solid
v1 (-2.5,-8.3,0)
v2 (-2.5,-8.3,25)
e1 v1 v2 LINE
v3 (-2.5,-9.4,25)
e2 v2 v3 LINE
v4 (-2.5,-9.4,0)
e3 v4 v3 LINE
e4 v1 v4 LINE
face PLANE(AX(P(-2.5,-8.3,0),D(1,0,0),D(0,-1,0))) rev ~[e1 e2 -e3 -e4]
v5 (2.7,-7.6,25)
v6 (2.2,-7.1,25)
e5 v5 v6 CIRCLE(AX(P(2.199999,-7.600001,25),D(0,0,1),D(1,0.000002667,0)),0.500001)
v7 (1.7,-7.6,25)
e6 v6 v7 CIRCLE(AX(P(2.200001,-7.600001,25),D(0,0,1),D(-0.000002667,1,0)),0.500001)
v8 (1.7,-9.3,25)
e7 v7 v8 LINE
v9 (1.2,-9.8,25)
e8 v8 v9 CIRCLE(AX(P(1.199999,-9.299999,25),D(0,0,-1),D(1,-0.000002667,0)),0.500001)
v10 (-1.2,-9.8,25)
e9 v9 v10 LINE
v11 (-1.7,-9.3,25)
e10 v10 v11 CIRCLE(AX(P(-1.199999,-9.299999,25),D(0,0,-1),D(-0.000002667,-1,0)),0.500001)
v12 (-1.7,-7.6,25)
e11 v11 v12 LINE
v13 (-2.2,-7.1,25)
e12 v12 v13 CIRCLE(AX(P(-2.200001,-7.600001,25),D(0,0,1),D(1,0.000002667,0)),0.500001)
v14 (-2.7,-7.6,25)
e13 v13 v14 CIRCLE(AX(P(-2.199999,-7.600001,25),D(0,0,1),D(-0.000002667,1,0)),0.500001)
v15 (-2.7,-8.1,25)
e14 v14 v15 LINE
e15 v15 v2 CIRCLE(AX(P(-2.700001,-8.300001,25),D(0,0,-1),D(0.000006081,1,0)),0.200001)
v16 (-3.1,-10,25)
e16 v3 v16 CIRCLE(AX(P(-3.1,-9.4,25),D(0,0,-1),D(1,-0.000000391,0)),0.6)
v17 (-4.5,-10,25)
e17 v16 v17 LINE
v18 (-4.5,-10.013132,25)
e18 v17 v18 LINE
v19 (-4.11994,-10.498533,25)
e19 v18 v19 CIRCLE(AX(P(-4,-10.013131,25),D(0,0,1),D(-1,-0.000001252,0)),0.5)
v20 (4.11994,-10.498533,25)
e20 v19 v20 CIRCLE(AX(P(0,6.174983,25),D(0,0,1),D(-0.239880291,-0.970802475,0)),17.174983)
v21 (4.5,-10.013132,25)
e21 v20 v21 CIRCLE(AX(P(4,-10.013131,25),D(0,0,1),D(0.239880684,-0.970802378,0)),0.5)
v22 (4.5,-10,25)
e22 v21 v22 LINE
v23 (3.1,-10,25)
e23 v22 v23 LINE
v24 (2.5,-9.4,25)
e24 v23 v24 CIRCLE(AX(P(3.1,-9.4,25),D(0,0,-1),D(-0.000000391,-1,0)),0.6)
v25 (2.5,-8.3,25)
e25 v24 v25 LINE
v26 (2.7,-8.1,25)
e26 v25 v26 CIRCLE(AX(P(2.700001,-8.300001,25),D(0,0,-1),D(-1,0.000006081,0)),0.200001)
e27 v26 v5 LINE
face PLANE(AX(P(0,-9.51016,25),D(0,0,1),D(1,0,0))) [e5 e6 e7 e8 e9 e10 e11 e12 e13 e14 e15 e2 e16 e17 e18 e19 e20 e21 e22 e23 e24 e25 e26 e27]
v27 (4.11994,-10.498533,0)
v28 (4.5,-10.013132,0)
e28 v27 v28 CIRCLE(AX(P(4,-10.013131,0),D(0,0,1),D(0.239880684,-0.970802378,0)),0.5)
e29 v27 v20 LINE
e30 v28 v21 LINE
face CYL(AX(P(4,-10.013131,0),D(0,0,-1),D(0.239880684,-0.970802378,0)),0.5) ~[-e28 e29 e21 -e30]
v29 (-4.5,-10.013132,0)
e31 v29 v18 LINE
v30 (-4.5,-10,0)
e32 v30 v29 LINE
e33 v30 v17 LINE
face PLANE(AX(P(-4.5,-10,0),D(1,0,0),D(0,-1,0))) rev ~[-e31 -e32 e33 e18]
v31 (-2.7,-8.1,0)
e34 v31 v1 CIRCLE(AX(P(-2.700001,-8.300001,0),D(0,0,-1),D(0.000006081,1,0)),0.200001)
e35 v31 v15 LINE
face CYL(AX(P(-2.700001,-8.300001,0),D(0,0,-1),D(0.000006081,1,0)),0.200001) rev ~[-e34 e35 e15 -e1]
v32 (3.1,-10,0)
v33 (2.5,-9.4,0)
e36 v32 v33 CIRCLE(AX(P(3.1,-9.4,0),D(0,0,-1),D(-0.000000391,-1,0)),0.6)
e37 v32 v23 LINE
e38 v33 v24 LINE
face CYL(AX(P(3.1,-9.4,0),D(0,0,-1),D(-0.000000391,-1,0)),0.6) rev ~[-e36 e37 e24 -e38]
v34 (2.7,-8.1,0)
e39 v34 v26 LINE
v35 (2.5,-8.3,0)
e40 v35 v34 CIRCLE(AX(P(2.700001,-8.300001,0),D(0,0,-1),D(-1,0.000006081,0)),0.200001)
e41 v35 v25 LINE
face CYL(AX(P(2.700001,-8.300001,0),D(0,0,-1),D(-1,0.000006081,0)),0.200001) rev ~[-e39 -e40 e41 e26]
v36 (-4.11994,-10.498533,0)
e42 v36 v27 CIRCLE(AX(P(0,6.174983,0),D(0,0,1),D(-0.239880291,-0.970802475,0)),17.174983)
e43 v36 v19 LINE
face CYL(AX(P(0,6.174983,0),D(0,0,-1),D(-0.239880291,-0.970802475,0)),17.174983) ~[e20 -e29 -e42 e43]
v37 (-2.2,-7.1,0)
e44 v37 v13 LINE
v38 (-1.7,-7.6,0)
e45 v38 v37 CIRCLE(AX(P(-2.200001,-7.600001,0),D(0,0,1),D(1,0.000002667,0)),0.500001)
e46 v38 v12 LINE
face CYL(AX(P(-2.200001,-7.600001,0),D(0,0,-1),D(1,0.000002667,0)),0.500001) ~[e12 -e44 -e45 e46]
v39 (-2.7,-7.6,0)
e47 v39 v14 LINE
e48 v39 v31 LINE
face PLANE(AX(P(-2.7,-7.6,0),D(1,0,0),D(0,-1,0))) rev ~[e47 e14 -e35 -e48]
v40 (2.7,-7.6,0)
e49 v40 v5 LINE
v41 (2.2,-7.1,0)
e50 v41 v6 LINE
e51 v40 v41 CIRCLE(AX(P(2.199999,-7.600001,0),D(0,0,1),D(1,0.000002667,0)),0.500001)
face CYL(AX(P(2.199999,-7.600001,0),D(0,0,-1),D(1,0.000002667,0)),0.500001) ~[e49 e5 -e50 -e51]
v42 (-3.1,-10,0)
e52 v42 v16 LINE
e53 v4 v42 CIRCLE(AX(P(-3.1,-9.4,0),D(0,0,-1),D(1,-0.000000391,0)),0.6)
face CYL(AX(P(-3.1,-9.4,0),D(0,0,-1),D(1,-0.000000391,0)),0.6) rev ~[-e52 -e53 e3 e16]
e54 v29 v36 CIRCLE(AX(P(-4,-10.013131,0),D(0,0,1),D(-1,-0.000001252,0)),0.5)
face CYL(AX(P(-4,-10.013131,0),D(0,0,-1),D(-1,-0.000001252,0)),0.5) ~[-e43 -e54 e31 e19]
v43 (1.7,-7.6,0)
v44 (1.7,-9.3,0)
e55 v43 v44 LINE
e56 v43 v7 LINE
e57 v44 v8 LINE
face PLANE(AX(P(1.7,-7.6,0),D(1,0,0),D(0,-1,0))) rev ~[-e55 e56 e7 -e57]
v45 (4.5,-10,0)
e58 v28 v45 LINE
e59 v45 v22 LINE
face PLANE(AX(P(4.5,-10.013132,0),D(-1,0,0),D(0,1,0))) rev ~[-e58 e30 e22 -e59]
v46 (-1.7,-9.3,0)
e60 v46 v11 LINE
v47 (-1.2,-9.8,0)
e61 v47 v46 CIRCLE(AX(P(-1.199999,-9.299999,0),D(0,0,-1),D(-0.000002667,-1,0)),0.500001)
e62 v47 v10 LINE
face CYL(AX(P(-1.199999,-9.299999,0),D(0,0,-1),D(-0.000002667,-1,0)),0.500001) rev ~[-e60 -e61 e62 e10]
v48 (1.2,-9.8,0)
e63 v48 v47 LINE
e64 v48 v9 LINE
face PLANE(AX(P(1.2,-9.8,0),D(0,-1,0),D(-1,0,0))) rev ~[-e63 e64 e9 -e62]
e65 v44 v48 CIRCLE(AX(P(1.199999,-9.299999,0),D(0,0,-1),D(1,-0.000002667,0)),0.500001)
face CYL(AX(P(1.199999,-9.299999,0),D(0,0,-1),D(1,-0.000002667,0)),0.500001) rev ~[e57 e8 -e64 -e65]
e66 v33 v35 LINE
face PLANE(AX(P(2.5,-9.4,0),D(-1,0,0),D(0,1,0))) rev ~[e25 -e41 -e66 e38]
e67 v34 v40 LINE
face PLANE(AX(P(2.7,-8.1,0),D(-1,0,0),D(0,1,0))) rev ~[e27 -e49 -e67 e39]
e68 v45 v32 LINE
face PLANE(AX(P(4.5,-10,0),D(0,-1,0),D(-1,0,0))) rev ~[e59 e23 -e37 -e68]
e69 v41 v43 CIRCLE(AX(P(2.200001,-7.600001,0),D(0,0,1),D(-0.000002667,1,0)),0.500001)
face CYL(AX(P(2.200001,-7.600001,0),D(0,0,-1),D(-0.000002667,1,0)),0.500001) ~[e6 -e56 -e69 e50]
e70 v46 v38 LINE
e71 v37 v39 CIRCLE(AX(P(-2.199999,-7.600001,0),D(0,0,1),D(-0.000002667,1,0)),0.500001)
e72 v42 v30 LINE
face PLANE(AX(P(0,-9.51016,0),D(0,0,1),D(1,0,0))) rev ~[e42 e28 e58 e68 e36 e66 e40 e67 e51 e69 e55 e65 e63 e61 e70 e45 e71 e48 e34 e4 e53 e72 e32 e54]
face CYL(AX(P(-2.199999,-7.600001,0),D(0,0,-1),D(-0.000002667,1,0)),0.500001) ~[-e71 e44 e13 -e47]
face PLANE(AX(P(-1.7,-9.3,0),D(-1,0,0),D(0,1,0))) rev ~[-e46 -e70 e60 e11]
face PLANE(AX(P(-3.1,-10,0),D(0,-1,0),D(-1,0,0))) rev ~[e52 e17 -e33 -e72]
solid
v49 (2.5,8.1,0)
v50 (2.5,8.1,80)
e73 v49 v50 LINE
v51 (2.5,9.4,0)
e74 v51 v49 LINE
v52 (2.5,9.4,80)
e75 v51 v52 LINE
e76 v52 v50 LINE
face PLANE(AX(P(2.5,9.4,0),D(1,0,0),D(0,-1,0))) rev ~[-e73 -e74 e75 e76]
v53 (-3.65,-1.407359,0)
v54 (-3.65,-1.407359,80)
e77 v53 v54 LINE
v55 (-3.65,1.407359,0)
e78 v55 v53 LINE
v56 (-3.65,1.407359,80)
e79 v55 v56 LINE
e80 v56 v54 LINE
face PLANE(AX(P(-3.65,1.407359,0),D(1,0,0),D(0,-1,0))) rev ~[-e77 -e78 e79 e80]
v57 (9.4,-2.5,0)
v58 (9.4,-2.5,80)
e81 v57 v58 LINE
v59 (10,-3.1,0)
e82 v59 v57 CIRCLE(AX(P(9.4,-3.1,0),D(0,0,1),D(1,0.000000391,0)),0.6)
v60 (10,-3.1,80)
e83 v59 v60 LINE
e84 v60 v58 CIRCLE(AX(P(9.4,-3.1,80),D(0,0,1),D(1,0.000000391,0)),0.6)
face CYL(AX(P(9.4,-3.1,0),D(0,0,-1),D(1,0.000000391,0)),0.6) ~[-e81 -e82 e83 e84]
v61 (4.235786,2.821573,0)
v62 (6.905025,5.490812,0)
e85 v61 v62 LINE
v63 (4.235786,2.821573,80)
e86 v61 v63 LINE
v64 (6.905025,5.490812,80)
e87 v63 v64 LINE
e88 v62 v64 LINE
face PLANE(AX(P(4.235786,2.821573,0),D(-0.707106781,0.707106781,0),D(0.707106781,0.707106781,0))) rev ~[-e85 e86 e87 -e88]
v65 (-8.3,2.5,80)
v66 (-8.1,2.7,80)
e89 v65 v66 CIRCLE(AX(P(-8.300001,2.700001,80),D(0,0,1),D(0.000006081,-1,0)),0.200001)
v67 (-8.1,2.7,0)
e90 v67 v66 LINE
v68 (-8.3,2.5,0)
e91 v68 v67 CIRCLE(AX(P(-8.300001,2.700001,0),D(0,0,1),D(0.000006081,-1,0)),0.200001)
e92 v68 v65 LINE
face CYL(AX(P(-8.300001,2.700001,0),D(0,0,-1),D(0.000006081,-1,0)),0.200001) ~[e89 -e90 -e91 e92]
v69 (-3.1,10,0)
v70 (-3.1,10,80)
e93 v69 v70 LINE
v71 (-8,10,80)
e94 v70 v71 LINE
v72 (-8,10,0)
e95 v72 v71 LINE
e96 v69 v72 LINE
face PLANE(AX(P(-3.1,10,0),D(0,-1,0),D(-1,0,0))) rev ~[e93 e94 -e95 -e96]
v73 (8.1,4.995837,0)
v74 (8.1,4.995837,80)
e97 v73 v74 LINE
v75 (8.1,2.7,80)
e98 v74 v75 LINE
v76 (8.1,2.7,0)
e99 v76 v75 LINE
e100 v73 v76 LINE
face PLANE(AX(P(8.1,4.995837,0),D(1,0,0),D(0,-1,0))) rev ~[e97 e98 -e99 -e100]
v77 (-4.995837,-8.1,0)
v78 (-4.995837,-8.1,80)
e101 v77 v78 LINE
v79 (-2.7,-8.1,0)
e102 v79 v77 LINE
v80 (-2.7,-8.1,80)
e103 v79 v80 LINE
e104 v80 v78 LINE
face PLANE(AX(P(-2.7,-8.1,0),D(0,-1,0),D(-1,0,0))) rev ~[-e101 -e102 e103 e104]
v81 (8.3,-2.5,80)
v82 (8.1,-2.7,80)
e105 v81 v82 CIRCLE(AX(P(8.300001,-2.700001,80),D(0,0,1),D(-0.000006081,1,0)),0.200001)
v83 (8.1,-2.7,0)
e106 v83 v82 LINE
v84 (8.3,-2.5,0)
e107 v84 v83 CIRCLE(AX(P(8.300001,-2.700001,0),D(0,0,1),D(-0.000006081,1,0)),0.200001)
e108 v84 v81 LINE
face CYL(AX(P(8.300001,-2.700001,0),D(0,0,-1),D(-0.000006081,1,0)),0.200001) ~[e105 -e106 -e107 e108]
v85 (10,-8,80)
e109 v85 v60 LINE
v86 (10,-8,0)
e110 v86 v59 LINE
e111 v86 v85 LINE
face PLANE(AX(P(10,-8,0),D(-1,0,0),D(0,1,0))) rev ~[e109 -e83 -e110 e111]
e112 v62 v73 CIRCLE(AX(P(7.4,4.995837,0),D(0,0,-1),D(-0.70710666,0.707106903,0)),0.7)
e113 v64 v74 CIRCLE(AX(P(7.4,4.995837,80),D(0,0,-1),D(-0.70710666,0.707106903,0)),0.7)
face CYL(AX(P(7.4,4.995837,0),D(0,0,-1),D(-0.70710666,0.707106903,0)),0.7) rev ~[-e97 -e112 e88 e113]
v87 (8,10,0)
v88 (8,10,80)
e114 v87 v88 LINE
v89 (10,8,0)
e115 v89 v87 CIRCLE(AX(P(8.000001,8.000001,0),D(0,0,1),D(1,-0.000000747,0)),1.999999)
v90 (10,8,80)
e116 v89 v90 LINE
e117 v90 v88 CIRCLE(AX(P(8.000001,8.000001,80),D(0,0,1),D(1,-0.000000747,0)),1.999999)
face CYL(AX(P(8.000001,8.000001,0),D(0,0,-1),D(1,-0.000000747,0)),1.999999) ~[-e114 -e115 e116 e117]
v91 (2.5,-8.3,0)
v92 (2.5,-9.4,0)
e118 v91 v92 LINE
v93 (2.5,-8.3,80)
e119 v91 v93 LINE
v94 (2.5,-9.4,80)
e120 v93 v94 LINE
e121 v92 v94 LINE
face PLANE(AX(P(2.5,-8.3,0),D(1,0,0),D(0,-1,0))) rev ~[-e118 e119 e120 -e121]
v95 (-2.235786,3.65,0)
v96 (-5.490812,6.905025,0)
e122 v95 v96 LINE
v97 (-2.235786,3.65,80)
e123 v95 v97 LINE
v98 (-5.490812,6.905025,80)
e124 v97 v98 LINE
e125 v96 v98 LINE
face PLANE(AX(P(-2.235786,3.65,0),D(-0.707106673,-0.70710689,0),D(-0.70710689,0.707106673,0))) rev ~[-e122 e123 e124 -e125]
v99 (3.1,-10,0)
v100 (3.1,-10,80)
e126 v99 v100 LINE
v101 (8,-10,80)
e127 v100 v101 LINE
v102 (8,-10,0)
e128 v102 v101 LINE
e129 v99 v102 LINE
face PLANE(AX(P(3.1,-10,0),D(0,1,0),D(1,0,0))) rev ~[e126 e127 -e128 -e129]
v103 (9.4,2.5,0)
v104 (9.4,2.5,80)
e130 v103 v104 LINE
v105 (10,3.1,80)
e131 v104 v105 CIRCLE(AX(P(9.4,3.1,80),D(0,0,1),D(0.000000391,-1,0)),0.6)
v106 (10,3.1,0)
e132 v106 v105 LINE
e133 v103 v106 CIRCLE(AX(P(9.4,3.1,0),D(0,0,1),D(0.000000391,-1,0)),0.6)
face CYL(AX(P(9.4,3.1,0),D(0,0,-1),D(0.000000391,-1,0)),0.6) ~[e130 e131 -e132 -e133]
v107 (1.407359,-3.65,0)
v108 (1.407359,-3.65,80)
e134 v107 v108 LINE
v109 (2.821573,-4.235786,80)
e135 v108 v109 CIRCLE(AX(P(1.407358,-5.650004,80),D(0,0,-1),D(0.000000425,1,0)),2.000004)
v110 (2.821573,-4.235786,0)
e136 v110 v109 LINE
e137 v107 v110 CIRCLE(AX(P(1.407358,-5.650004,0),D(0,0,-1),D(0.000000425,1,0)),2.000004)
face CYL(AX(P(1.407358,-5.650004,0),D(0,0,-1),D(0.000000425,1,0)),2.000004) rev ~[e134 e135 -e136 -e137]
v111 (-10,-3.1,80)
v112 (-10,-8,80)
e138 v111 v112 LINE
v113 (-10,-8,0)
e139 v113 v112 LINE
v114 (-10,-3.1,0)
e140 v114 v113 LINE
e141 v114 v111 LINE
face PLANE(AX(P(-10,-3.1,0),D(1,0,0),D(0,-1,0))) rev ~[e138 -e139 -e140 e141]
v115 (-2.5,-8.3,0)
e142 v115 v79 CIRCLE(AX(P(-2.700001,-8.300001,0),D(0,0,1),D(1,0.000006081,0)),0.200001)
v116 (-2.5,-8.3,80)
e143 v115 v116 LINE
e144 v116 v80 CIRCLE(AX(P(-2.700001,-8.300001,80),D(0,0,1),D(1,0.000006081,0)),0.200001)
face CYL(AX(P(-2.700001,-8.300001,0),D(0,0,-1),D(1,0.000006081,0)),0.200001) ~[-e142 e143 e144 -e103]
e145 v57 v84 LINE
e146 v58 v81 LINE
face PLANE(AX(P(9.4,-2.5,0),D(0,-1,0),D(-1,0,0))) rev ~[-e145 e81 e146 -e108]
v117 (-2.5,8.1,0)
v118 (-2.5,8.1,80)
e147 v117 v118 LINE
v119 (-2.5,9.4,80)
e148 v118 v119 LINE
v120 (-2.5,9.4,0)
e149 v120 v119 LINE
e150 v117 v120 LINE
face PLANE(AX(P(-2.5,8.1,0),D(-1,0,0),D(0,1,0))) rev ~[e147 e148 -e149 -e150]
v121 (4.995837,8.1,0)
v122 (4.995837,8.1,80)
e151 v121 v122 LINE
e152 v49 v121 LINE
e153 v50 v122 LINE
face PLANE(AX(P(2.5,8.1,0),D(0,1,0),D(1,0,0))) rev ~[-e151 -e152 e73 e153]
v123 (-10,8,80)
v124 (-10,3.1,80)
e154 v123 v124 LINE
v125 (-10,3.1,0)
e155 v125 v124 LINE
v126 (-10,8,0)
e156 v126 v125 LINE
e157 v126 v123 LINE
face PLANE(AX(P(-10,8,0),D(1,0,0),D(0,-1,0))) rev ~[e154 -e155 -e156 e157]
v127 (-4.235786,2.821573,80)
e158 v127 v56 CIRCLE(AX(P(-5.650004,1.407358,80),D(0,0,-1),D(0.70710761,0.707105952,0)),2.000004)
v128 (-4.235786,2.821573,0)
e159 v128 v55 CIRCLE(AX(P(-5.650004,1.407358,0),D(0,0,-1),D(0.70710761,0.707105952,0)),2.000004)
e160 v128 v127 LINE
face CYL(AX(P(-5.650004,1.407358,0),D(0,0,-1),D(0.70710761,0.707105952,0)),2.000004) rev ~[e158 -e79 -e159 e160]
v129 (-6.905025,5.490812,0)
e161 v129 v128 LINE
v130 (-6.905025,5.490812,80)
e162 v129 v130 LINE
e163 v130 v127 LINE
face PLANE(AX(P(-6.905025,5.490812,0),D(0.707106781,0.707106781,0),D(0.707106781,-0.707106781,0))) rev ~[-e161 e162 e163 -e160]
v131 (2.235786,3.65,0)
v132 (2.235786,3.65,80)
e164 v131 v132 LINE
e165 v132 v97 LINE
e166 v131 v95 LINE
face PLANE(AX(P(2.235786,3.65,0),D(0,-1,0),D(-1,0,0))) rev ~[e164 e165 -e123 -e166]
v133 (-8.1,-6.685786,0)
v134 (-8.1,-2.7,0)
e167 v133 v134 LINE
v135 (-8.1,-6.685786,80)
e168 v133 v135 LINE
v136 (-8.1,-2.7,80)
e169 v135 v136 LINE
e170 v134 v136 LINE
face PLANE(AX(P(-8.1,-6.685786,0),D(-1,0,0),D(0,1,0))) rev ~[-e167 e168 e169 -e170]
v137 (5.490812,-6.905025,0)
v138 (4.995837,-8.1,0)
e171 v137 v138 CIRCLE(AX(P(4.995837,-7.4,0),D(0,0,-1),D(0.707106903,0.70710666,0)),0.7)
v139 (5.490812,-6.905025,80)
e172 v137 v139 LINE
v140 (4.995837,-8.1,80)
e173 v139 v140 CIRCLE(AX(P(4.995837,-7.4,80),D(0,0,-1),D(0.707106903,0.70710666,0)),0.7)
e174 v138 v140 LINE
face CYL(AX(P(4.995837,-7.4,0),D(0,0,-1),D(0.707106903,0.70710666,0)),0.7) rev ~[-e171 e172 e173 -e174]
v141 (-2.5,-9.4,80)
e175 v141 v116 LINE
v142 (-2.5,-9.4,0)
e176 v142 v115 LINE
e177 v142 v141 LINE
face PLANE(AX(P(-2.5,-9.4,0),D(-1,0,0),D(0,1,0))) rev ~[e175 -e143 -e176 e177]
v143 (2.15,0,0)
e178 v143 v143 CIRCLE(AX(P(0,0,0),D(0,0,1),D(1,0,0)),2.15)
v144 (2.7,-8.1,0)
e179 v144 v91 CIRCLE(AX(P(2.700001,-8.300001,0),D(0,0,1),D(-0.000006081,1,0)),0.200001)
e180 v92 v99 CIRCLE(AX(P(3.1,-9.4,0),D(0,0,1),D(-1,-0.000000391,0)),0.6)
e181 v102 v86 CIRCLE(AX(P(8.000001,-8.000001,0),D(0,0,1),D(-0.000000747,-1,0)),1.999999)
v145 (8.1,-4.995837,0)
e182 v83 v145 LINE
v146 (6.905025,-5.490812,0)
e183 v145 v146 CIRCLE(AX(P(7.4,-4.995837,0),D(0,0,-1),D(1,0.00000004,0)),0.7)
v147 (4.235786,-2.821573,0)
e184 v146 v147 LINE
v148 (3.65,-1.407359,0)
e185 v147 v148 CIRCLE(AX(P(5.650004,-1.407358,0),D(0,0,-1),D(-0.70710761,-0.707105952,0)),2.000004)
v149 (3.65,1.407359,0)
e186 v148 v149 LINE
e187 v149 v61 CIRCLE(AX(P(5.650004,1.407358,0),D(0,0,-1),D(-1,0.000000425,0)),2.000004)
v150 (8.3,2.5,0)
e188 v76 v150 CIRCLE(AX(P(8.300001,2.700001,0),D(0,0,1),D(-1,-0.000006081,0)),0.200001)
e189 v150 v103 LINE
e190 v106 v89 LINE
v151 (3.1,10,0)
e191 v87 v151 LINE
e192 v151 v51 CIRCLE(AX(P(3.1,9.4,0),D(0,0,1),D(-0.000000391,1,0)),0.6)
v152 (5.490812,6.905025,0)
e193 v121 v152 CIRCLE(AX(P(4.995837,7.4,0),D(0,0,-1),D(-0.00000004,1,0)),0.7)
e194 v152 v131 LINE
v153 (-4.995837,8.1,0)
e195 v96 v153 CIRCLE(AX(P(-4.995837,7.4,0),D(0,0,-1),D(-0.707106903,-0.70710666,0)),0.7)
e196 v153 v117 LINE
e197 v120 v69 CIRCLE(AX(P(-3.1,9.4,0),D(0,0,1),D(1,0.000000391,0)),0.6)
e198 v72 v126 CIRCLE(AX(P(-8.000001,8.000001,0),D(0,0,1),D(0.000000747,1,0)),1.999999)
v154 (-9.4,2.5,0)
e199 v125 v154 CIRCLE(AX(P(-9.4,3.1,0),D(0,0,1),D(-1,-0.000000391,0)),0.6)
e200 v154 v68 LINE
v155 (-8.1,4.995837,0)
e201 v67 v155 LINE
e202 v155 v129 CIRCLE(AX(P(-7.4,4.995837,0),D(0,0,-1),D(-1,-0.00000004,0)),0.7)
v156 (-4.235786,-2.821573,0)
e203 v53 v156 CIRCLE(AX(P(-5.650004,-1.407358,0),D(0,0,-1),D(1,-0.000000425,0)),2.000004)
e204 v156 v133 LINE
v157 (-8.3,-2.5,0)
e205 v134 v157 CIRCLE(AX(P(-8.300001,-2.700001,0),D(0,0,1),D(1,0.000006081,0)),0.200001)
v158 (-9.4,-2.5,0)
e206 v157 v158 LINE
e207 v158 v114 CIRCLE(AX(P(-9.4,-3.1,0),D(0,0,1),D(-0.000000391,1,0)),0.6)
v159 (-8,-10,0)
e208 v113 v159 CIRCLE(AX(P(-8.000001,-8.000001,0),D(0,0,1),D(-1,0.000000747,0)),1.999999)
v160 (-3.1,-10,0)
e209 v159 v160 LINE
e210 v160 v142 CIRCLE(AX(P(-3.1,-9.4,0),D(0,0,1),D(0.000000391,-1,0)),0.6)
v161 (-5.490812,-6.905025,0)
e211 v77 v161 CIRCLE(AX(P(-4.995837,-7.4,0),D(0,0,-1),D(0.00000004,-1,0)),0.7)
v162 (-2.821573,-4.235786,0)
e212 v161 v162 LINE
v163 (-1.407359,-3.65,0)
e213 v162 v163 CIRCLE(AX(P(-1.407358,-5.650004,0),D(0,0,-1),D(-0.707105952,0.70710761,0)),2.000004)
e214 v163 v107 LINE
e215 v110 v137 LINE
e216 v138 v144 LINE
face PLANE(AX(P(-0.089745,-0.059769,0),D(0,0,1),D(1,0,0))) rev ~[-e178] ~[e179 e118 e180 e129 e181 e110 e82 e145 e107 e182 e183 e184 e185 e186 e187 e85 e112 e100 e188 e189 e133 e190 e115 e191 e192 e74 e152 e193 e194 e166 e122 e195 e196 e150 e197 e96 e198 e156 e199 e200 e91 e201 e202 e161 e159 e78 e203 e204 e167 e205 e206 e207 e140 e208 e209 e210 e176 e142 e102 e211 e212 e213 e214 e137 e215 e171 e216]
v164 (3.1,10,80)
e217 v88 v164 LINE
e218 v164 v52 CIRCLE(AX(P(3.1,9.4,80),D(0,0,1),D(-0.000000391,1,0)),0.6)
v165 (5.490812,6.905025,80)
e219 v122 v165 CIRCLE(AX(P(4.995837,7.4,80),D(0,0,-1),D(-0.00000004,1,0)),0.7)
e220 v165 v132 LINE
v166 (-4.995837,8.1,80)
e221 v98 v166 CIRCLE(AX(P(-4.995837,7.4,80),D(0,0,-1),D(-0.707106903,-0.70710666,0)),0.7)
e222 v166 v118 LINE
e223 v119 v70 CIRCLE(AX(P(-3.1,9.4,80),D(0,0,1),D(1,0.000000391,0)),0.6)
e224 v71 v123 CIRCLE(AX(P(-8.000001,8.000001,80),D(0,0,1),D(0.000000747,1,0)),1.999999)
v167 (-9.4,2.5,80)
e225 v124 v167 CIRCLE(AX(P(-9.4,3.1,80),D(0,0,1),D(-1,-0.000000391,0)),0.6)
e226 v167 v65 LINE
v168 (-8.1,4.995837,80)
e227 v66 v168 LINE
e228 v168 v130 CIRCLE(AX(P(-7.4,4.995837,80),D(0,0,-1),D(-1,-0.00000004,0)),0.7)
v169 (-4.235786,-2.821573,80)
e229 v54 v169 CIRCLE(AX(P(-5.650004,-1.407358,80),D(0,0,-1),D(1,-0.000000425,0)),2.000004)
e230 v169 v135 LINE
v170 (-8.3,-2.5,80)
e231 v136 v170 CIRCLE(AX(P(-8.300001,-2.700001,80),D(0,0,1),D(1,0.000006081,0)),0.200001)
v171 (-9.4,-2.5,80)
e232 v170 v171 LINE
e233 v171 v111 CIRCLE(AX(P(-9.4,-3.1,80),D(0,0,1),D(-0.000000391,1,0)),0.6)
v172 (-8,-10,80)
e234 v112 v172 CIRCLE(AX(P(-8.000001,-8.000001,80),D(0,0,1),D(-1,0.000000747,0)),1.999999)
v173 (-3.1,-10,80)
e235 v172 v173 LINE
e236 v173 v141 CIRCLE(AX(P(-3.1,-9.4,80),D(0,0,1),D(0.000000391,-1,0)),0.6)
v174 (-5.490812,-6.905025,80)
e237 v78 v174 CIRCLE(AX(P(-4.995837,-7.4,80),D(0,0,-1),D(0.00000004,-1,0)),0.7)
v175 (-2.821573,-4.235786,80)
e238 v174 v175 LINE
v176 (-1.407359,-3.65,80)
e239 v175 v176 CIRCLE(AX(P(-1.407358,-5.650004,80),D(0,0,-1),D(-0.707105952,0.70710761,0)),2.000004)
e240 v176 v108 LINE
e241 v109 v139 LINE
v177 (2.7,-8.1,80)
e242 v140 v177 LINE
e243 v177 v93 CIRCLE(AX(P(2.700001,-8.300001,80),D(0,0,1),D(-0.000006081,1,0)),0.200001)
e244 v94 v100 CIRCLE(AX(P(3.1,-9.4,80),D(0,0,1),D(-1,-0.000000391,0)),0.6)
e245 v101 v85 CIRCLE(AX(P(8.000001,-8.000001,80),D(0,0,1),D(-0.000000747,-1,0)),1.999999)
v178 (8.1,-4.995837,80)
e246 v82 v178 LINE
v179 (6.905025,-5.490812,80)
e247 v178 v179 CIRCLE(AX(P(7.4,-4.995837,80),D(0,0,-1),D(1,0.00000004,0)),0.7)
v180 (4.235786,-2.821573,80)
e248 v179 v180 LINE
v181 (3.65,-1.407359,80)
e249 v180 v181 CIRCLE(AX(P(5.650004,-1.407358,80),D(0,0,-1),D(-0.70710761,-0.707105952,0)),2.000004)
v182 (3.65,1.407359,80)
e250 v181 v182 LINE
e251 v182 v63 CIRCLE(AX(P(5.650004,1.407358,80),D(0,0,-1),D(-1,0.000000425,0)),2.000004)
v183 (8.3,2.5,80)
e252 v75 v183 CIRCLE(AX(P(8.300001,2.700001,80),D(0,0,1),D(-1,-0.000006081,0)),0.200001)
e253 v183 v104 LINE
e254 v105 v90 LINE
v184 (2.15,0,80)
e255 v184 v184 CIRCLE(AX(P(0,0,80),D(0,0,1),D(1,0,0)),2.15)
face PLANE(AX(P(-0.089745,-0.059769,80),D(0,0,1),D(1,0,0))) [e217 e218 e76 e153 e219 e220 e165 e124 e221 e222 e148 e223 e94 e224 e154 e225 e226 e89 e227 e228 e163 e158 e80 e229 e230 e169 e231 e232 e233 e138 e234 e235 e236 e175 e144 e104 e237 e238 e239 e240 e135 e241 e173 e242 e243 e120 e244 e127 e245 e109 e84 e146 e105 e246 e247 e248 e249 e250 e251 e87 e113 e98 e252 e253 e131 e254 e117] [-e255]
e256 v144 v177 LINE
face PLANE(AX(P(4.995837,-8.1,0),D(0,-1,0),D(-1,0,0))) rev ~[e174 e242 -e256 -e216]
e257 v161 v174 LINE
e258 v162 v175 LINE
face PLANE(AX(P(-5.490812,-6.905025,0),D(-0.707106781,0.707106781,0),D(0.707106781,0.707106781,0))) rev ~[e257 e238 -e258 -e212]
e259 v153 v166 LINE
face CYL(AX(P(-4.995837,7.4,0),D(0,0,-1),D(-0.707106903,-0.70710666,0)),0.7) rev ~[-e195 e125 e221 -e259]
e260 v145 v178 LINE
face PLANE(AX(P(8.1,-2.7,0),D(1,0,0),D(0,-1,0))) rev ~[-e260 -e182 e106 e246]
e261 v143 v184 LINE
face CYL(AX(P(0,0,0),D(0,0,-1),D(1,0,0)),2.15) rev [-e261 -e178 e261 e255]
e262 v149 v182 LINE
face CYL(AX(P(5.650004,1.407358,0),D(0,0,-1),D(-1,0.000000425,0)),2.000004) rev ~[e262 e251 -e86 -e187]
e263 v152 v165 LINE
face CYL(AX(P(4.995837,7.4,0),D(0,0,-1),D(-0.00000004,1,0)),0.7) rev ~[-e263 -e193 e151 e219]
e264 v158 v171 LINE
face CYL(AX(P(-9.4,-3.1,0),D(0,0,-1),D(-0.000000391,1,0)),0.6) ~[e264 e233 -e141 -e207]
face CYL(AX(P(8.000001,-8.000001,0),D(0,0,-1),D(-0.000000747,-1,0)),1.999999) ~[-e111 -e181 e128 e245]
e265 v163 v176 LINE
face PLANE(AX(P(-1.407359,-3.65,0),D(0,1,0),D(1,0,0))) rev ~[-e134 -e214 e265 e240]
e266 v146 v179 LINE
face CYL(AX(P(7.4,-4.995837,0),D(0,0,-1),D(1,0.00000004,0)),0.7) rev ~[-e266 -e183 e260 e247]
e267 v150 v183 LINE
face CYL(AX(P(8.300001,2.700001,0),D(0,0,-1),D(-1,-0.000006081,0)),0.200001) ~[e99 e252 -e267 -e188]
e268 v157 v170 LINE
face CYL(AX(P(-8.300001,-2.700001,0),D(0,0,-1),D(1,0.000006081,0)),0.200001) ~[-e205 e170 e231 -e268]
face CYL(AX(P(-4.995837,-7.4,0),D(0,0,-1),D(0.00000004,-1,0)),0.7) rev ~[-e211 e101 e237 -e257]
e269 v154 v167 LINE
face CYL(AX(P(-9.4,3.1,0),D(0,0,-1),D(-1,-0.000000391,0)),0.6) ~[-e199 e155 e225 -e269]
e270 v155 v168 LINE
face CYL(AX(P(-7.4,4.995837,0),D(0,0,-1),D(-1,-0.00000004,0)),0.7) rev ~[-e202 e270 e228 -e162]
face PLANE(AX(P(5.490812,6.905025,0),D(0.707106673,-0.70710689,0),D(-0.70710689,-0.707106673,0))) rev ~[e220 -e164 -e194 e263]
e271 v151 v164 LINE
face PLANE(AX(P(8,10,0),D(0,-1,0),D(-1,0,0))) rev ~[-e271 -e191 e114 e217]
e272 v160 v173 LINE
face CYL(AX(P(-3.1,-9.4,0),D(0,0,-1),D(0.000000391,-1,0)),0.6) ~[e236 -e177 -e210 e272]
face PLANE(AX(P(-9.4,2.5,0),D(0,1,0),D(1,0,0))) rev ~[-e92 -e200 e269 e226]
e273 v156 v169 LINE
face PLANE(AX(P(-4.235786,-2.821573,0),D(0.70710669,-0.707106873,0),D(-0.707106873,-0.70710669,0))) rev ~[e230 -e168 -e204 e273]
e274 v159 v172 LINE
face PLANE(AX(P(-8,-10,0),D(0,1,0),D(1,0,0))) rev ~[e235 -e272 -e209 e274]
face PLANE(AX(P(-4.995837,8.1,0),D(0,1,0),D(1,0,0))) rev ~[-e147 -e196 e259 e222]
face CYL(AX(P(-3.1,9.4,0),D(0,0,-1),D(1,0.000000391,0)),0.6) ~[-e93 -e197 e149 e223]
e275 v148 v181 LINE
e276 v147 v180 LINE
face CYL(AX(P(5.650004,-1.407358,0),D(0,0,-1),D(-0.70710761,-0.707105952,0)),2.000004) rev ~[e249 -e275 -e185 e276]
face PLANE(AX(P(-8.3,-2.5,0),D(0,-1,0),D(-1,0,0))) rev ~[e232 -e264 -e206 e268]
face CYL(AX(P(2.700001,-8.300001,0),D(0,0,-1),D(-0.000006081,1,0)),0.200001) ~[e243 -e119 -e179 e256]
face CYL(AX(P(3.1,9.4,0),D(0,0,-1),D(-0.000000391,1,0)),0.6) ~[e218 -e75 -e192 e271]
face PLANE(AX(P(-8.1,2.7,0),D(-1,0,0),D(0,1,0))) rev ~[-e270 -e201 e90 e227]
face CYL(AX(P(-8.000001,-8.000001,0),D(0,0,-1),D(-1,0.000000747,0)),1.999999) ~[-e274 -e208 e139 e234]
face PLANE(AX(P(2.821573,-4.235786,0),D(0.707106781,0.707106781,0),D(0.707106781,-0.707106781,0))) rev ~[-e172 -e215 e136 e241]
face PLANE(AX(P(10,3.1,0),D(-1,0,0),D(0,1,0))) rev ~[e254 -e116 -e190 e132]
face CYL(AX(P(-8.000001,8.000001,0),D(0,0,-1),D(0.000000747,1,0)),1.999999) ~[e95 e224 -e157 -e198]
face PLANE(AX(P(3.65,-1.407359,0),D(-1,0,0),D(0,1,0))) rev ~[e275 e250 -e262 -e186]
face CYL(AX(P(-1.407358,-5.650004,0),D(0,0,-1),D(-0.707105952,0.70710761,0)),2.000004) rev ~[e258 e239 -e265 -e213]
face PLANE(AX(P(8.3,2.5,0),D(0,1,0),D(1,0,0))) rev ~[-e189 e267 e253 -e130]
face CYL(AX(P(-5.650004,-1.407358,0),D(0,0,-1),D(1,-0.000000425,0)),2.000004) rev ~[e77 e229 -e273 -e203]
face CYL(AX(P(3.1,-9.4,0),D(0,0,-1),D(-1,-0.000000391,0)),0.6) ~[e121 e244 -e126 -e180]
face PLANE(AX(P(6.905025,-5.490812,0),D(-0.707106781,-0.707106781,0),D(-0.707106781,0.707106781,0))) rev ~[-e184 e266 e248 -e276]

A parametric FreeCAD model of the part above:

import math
import FreeCAD as App
import Part
import Sketcher

V = App.Vector

doc = App.newDocument("Part")
body = doc.addObject("PartDesign::Body", "Body")

sketch1 = body.newObject("Sketcher::SketchObject", "Sketch")
sketch1.AttachmentSupport = (doc.getObject("XY_Plane"), [""])
sketch1.MapMode = "FlatFace"
sketch1.addGeometry([
    Part.LineSegment(V(-3.1, 10, 0), V(-8, 10, 0)),
    Part.ArcOfCircle(Part.Circle(V(-8.000001, 8.000001, 0), V(0, 0, 1), 1.999999), math.radians(89.999957), math.radians(180.000043)),
    Part.LineSegment(V(-10, 8, 0), V(-10, 3.1, 0)),
    Part.ArcOfCircle(Part.Circle(V(-9.4, 3.1, 0), V(0, 0, 1), 0.6), math.radians(-179.999978), math.radians(-90.000022)),
    Part.LineSegment(V(-9.4, 2.5, 0), V(-8.3, 2.5, 0)),
    Part.ArcOfCircle(Part.Circle(V(-8.300001, 2.700001, 0), V(0, 0, 1), 0.200001), math.radians(-89.999652), math.radians(-0.000348)),
    Part.LineSegment(V(-8.1, 2.7, 0), V(-8.1, 4.995837, 0)),
    Part.ArcOfCircle(Part.Circle(V(-7.4, 4.995837, 0), V(0, 0, 1), 0.7), math.radians(45.00001), math.radians(180.000002)),
    Part.LineSegment(V(-6.905025, 5.490812, 0), V(-4.235786, 2.821573, 0)),
    Part.ArcOfCircle(Part.Circle(V(-5.650004, 1.407358, 0), V(0, 0, 1), 2.000004), math.radians(0.000024), math.radians(44.999933)),
    Part.LineSegment(V(-3.65, 1.407359, 0), V(-3.65, -1.407359, 0)),
    Part.ArcOfCircle(Part.Circle(V(-5.650004, -1.407358, 0), V(0, 0, 1), 2.000004), math.radians(-44.999933), math.radians(-0.000024)),
    Part.LineSegment(V(-4.235786, -2.821573, 0), V(-8.1, -6.685786, 0)),
    Part.LineSegment(V(-8.1, -6.685786, 0), V(-8.1, -2.7, 0)),
    Part.ArcOfCircle(Part.Circle(V(-8.300001, -2.700001, 0), V(0, 0, 1), 0.200001), math.radians(0.000348), math.radians(89.999652)),
    Part.LineSegment(V(-8.3, -2.5, 0), V(-9.4, -2.5, 0)),
    Part.ArcOfCircle(Part.Circle(V(-9.4, -3.1, 0), V(0, 0, 1), 0.6), math.radians(90.000022), math.radians(179.999978)),
    Part.LineSegment(V(-10, -3.1, 0), V(-10, -8, 0)),
    Part.ArcOfCircle(Part.Circle(V(-8.000001, -8.000001, 0), V(0, 0, 1), 1.999999), math.radians(179.999957), math.radians(270.000043)),
    Part.LineSegment(V(-8, -10, 0), V(-3.1, -10, 0)),
    Part.ArcOfCircle(Part.Circle(V(-3.1, -9.4, 0), V(0, 0, 1), 0.6), math.radians(-89.999978), math.radians(-0.000022)),
    Part.LineSegment(V(-2.5, -9.4, 0), V(-2.5, -8.3, 0)),
    Part.ArcOfCircle(Part.Circle(V(-2.700001, -8.300001, 0), V(0, 0, 1), 0.200001), math.radians(0.000348), math.radians(89.999652)),
    Part.LineSegment(V(-2.7, -8.1, 0), V(-4.995837, -8.1, 0)),
    Part.ArcOfCircle(Part.Circle(V(-4.995837, -7.4, 0), V(0, 0, 1), 0.7), math.radians(135.00001), math.radians(270.000002)),
    Part.LineSegment(V(-5.490812, -6.905025, 0), V(-2.821573, -4.235786, 0)),
    Part.ArcOfCircle(Part.Circle(V(-1.407358, -5.650004, 0), V(0, 0, 1), 2.000004), math.radians(90.000024), math.radians(134.999933)),
    Part.LineSegment(V(-1.407359, -3.65, 0), V(1.407359, -3.65, 0)),
    Part.ArcOfCircle(Part.Circle(V(1.407358, -5.650004, 0), V(0, 0, 1), 2.000004), math.radians(45.000067), math.radians(89.999976)),
    Part.LineSegment(V(2.821573, -4.235786, 0), V(5.490812, -6.905025, 0)),
    Part.ArcOfCircle(Part.Circle(V(4.995837, -7.4, 0), V(0, 0, 1), 0.7), math.radians(-90.000002), math.radians(44.99999)),
    Part.LineSegment(V(4.995837, -8.1, 0), V(2.7, -8.1, 0)),
    Part.ArcOfCircle(Part.Circle(V(2.700001, -8.300001, 0), V(0, 0, 1), 0.200001), math.radians(90.000348), math.radians(179.999652)),
    Part.LineSegment(V(2.5, -8.3, 0), V(2.5, -9.4, 0)),
    Part.ArcOfCircle(Part.Circle(V(3.1, -9.4, 0), V(0, 0, 1), 0.6), math.radians(-179.999978), math.radians(-90.000022)),
    Part.LineSegment(V(3.1, -10, 0), V(8, -10, 0)),
    Part.ArcOfCircle(Part.Circle(V(8.000001, -8.000001, 0), V(0, 0, 1), 1.999999), math.radians(-90.000043), math.radians(0.000043)),
    Part.LineSegment(V(10, -8, 0), V(10, -3.1, 0)),
    Part.ArcOfCircle(Part.Circle(V(9.4, -3.1, 0), V(0, 0, 1), 0.6), math.radians(0.000022), math.radians(89.999978)),
    Part.LineSegment(V(9.4, -2.5, 0), V(8.3, -2.5, 0)),
    Part.ArcOfCircle(Part.Circle(V(8.300001, -2.700001, 0), V(0, 0, 1), 0.200001), math.radians(90.000348), math.radians(179.999652)),
    Part.LineSegment(V(8.1, -2.7, 0), V(8.1, -4.995837, 0)),
    Part.ArcOfCircle(Part.Circle(V(7.4, -4.995837, 0), V(0, 0, 1), 0.7), math.radians(-134.99999), math.radians(0.000002)),
    Part.LineSegment(V(6.905025, -5.490812, 0), V(4.235786, -2.821573, 0)),
    Part.ArcOfCircle(Part.Circle(V(5.650004, -1.407358, 0), V(0, 0, 1), 2.000004), math.radians(-179.999976), math.radians(-135.000067)),
    Part.LineSegment(V(3.65, -1.407359, 0), V(3.65, 1.407359, 0)),
    Part.ArcOfCircle(Part.Circle(V(5.650004, 1.407358, 0), V(0, 0, 1), 2.000004), math.radians(135.000067), math.radians(179.999976)),
    Part.LineSegment(V(4.235786, 2.821573, 0), V(6.905025, 5.490812, 0)),
    Part.ArcOfCircle(Part.Circle(V(7.4, 4.995837, 0), V(0, 0, 1), 0.7), math.radians(-0.000002), math.radians(134.99999)),
    Part.LineSegment(V(8.1, 4.995837, 0), V(8.1, 2.7, 0)),
    Part.ArcOfCircle(Part.Circle(V(8.300001, 2.700001, 0), V(0, 0, 1), 0.200001), math.radians(-179.999652), math.radians(-90.000348)),
    Part.LineSegment(V(8.3, 2.5, 0), V(9.4, 2.5, 0)),
    Part.ArcOfCircle(Part.Circle(V(9.4, 3.1, 0), V(0, 0, 1), 0.6), math.radians(-89.999978), math.radians(-0.000022)),
    Part.LineSegment(V(10, 3.1, 0), V(10, 8, 0)),
    Part.ArcOfCircle(Part.Circle(V(8.000001, 8.000001, 0), V(0, 0, 1), 1.999999), math.radians(-0.000043), math.radians(90.000043)),
    Part.LineSegment(V(8, 10, 0), V(3.1, 10, 0)),
    Part.ArcOfCircle(Part.Circle(V(3.1, 9.4, 0), V(0, 0, 1), 0.6), math.radians(90.000022), math.radians(179.999978)),
    Part.LineSegment(V(2.5, 9.4, 0), V(2.5, 8.1, 0)),
    Part.LineSegment(V(2.5, 8.1, 0), V(4.995837, 8.1, 0)),
    Part.ArcOfCircle(Part.Circle(V(4.995837, 7.4, 0), V(0, 0, 1), 0.7), math.radians(-44.99999), math.radians(90.000002)),
    Part.LineSegment(V(5.490812, 6.905025, 0), V(2.235786, 3.65, 0)),
    Part.LineSegment(V(2.235786, 3.65, 0), V(-2.235786, 3.65, 0)),
    Part.LineSegment(V(-2.235786, 3.65, 0), V(-5.490812, 6.905025, 0)),
    Part.ArcOfCircle(Part.Circle(V(-4.995837, 7.4, 0), V(0, 0, 1), 0.7), math.radians(89.999998), math.radians(224.99999)),
    Part.LineSegment(V(-4.995837, 8.1, 0), V(-2.5, 8.1, 0)),
    Part.LineSegment(V(-2.5, 8.1, 0), V(-2.5, 9.4, 0)),
    Part.ArcOfCircle(Part.Circle(V(-3.1, 9.4, 0), V(0, 0, 1), 0.6), math.radians(0.000022), math.radians(89.999978)),
    Part.Circle(V(0, 0, 0), V(0, 0, 1), 2.15),
], False)
sketch1.addConstraint([
    Sketcher.Constraint("Tangent", 0, 2, 1, 1),
    Sketcher.Constraint("Tangent", 1, 2, 2, 1),
    Sketcher.Constraint("Tangent", 2, 2, 3, 1),
    Sketcher.Constraint("Tangent", 3, 2, 4, 1),
    Sketcher.Constraint("Coincident", 4, 2, 5, 1),
    Sketcher.Constraint("Coincident", 5, 2, 6, 1),
    Sketcher.Constraint("Tangent", 6, 2, 7, 2),
    Sketcher.Constraint("Tangent", 7, 1, 8, 1),
    Sketcher.Constraint("Tangent", 8, 2, 9, 2),
    Sketcher.Constraint("Tangent", 9, 1, 10, 1),
    Sketcher.Constraint("Tangent", 10, 2, 11, 2),
    Sketcher.Constraint("Tangent", 11, 1, 12, 1),
    Sketcher.Constraint("Coincident", 12, 2, 13, 1),
    Sketcher.Constraint("Coincident", 13, 2, 14, 1),
    Sketcher.Constraint("Coincident", 14, 2, 15, 1),
    Sketcher.Constraint("Tangent", 15, 2, 16, 1),
    Sketcher.Constraint("Tangent", 16, 2, 17, 1),
    Sketcher.Constraint("Tangent", 17, 2, 18, 1),
    Sketcher.Constraint("Tangent", 18, 2, 19, 1),
    Sketcher.Constraint("Tangent", 19, 2, 20, 1),
    Sketcher.Constraint("Tangent", 20, 2, 21, 1),
    Sketcher.Constraint("Coincident", 21, 2, 22, 1),
    Sketcher.Constraint("Coincident", 22, 2, 23, 1),
    Sketcher.Constraint("Tangent", 23, 2, 24, 2),
    Sketcher.Constraint("Tangent", 24, 1, 25, 1),
    Sketcher.Constraint("Tangent", 25, 2, 26, 2),
    Sketcher.Constraint("Tangent", 26, 1, 27, 1),
    Sketcher.Constraint("Tangent", 27, 2, 28, 2),
    Sketcher.Constraint("Tangent", 28, 1, 29, 1),
    Sketcher.Constraint("Tangent", 29, 2, 30, 2),
    Sketcher.Constraint("Tangent", 30, 1, 31, 1),
    Sketcher.Constraint("Coincident", 31, 2, 32, 1),
    Sketcher.Constraint("Coincident", 32, 2, 33, 1),
    Sketcher.Constraint("Tangent", 33, 2, 34, 1),
    Sketcher.Constraint("Tangent", 34, 2, 35, 1),
    Sketcher.Constraint("Tangent", 35, 2, 36, 1),
    Sketcher.Constraint("Tangent", 36, 2, 37, 1),
    Sketcher.Constraint("Tangent", 37, 2, 38, 1),
    Sketcher.Constraint("Tangent", 38, 2, 39, 1),
    Sketcher.Constraint("Coincident", 39, 2, 40, 1),
    Sketcher.Constraint("Coincident", 40, 2, 41, 1),
    Sketcher.Constraint("Tangent", 41, 2, 42, 2),
    Sketcher.Constraint("Tangent", 42, 1, 43, 1),
    Sketcher.Constraint("Tangent", 43, 2, 44, 2),
    Sketcher.Constraint("Tangent", 44, 1, 45, 1),
    Sketcher.Constraint("Tangent", 45, 2, 46, 2),
    Sketcher.Constraint("Tangent", 46, 1, 47, 1),
    Sketcher.Constraint("Tangent", 47, 2, 48, 2),
    Sketcher.Constraint("Tangent", 48, 1, 49, 1),
    Sketcher.Constraint("Coincident", 49, 2, 50, 1),
    Sketcher.Constraint("Coincident", 50, 2, 51, 1),
    Sketcher.Constraint("Tangent", 51, 2, 52, 1),
    Sketcher.Constraint("Tangent", 52, 2, 53, 1),
    Sketcher.Constraint("Tangent", 53, 2, 54, 1),
    Sketcher.Constraint("Tangent", 54, 2, 55, 1),
    Sketcher.Constraint("Tangent", 55, 2, 56, 1),
    Sketcher.Constraint("Tangent", 56, 2, 57, 1),
    Sketcher.Constraint("Coincident", 57, 2, 58, 1),
    Sketcher.Constraint("Tangent", 58, 2, 59, 2),
    Sketcher.Constraint("Tangent", 59, 1, 60, 1),
    Sketcher.Constraint("Coincident", 60, 2, 61, 1),
    Sketcher.Constraint("Coincident", 61, 2, 62, 1),
    Sketcher.Constraint("Tangent", 62, 2, 63, 2),
    Sketcher.Constraint("Tangent", 63, 1, 64, 1),
    Sketcher.Constraint("Coincident", 64, 2, 65, 1),
    Sketcher.Constraint("Tangent", 65, 2, 66, 1),
    Sketcher.Constraint("Tangent", 66, 2, 0, 1),
    Sketcher.Constraint("Horizontal", 0),
    Sketcher.Constraint("Vertical", 2),
    Sketcher.Constraint("Horizontal", 4),
    Sketcher.Constraint("Vertical", 6),
    Sketcher.Constraint("Vertical", 10),
    Sketcher.Constraint("Vertical", 13),
    Sketcher.Constraint("Horizontal", 15),
    Sketcher.Constraint("Vertical", 17),
    Sketcher.Constraint("Horizontal", 19),
    Sketcher.Constraint("Vertical", 21),
    Sketcher.Constraint("Horizontal", 23),
    Sketcher.Constraint("Horizontal", 27),
    Sketcher.Constraint("Horizontal", 31),
    Sketcher.Constraint("Vertical", 33),
    Sketcher.Constraint("Horizontal", 35),
    Sketcher.Constraint("Vertical", 37),
    Sketcher.Constraint("Horizontal", 39),
    Sketcher.Constraint("Vertical", 41),
    Sketcher.Constraint("Vertical", 45),
    Sketcher.Constraint("Vertical", 49),
    Sketcher.Constraint("Horizontal", 51),
    Sketcher.Constraint("Vertical", 53),
    Sketcher.Constraint("Horizontal", 55),
    Sketcher.Constraint("Vertical", 57),
    Sketcher.Constraint("Horizontal", 58),
    Sketcher.Constraint("Horizontal", 61),
    Sketcher.Constraint("Horizontal", 64),
    Sketcher.Constraint("Vertical", 65),
    Sketcher.Constraint("Coincident", 67, 3, -1, 1),
    Sketcher.Constraint("Equal", 9, 11),
    Sketcher.Constraint("Equal", 5, 14),
    Sketcher.Constraint("Equal", 3, 16),
    Sketcher.Constraint("Equal", 1, 18),
    Sketcher.Constraint("Equal", 16, 20),
    Sketcher.Constraint("Equal", 14, 22),
    Sketcher.Constraint("Equal", 7, 24),
    Sketcher.Constraint("Equal", 11, 26),
    Sketcher.Constraint("Equal", 26, 28),
    Sketcher.Constraint("Equal", 24, 30),
    Sketcher.Constraint("Equal", 22, 32),
    Sketcher.Constraint("Equal", 20, 34),
    Sketcher.Constraint("Equal", 18, 36),
    Sketcher.Constraint("Equal", 34, 38),
    Sketcher.Constraint("Equal", 32, 40),
    Sketcher.Constraint("Equal", 30, 42),
    Sketcher.Constraint("Equal", 28, 44),
    Sketcher.Constraint("Equal", 44, 46),
    Sketcher.Constraint("Equal", 42, 48),
    Sketcher.Constraint("Equal", 40, 50),
    Sketcher.Constraint("Equal", 38, 52),
    Sketcher.Constraint("Equal", 36, 54),
    Sketcher.Constraint("Equal", 52, 56),
    Sketcher.Constraint("Equal", 48, 59),
    Sketcher.Constraint("Equal", 59, 63),
    Sketcher.Constraint("Equal", 56, 66),
    Sketcher.Constraint("Symmetric", 1, 3, 36, 3, -1, 1),
    Sketcher.Constraint("Symmetric", 5, 3, 40, 3, -1, 1),
    Sketcher.Constraint("Symmetric", 9, 3, 44, 3, -1, 1),
    Sketcher.Constraint("Symmetric", 14, 3, 50, 3, -1, 1),
    Sketcher.Constraint("Symmetric", 18, 3, 54, 3, -1, 1),
    Sketcher.Constraint("Symmetric", 24, 3, 59, 3, -1, 1),
    Sketcher.Constraint("Symmetric", 30, 3, 63, 3, -1, 1),
    Sketcher.Constraint("Symmetric", 11, 1, 46, 1, -1, 1),
    Sketcher.Constraint("Symmetric", 24, 3, 30, 3, -2),
    Sketcher.Constraint("Symmetric", 20, 3, 34, 3, -2),
    Sketcher.Constraint("Symmetric", 16, 3, 38, 3, -2),
    Sketcher.Constraint("Symmetric", 7, 3, 48, 3, -2),
    Sketcher.Constraint("Symmetric", 11, 1, 43, 2, -2),
    Sketcher.Constraint("Perpendicular", 8, 12),
    Sketcher.Constraint("Parallel", 12, 25),
    Sketcher.Constraint("Perpendicular", 25, 29),
    Sketcher.Constraint("Parallel", 47, 60),
    Sketcher.Constraint("Perpendicular", 60, 62),
    Sketcher.Constraint("Horizontal", 50, 3, 5, 2),
    Sketcher.Constraint("Horizontal", 40, 3, 13, 2),
    Sketcher.Constraint("Horizontal", 32, 3, 21, 2),
    Sketcher.Constraint("Horizontal", 21, 2, 32, 2),
    Sketcher.Constraint("Horizontal", 13, 2, 40, 2),
    Sketcher.Constraint("Horizontal", 5, 2, 49, 2),
    Sketcher.Constraint("Vertical", 34, 3, 56, 3),
    Sketcher.Constraint("Vertical", 20, 3, 66, 3),
    Sketcher.Constraint("Vertical", 14, 3, 4, 2),
    Sketcher.Constraint("Vertical", 4, 2, 14, 2),
    Sketcher.Constraint("Vertical", 32, 3, 31, 2),
    Sketcher.Constraint("Vertical", 50, 3, 39, 2),
    Sketcher.Constraint("Vertical", 39, 2, 50, 2),
    Sketcher.Constraint("Equal", 23, 31),
    Sketcher.Constraint("Equal", 55, 2),
    Sketcher.Constraint("Equal", 31, 6),
    Sketcher.Constraint("Equal", 27, 10),
    Sketcher.Constraint("Equal", 51, 21),
    Sketcher.Constraint("Equal", 8, 25),
    Sketcher.Constraint("Radius", 1, 1.999999),
    Sketcher.Constraint("Diameter", 67, 4.3),
    Sketcher.Constraint("Radius", 3, 0.6),
    Sketcher.Constraint("Radius", 5, 0.200001),
    Sketcher.Constraint("Radius", 7, 0.7),
    Sketcher.Constraint("DistanceX", 0, 2, 0, 1, 4.9),
    Sketcher.Constraint("DistanceX", 4, 1, 4, 2, 1.1),
    Sketcher.Constraint("DistanceX", 1, 3, -1, 1, 8.000001),
    Sketcher.Constraint("DistanceX", 9, 1, -1, 1, 3.65),
    Sketcher.Constraint("DistanceY", -1, 1, 60, 2, 3.65),
    Sketcher.Constraint("Radius", 9, 2.000004),
    Sketcher.Constraint("DistanceX", 27, 1, 27, 2, 2.814718),
])
pad1 = body.newObject("PartDesign::Pad", "Pad")
pad1.Profile = sketch1
pad1.Length = 80
body2 = doc.addObject("PartDesign::Body", "Body001")

sketch2 = body2.newObject("Sketcher::SketchObject", "Sketch001")
sketch2.AttachmentSupport = (doc.getObject("XY_Plane001"), [""])
sketch2.MapMode = "FlatFace"
sketch2.addGeometry([
    Part.LineSegment(V(-2.5, -8.3, 0), V(-2.5, -9.4, 0)),
    Part.ArcOfCircle(Part.Circle(V(-3.1, -9.4, 0), V(0, 0, 1), 0.6), math.radians(-89.999978), math.radians(-0.000022)),
    Part.LineSegment(V(-3.1, -10, 0), V(-4.5, -10, 0)),
    Part.LineSegment(V(-4.5, -10, 0), V(-4.5, -10.013132, 0)),
    Part.ArcOfCircle(Part.Circle(V(-4, -10.013131, 0), V(0, 0, 1), 0.5), math.radians(-179.999928), math.radians(-103.879498)),
    Part.ArcOfCircle(Part.Circle(V(0, 6.174983, 0), V(0, 0, 1), 17.174983), math.radians(-103.879475), math.radians(-76.120525)),
    Part.ArcOfCircle(Part.Circle(V(4, -10.013131, 0), V(0, 0, 1), 0.5), math.radians(-76.120502), math.radians(-0.000072)),
    Part.LineSegment(V(4.5, -10.013132, 0), V(4.5, -10, 0)),
    Part.LineSegment(V(4.5, -10, 0), V(3.1, -10, 0)),
    Part.ArcOfCircle(Part.Circle(V(3.1, -9.4, 0), V(0, 0, 1), 0.6), math.radians(-179.999978), math.radians(-90.000022)),
    Part.LineSegment(V(2.5, -9.4, 0), V(2.5, -8.3, 0)),
    Part.ArcOfCircle(Part.Circle(V(2.700001, -8.300001, 0), V(0, 0, 1), 0.200001), math.radians(90.000348), math.radians(179.999652)),
    Part.LineSegment(V(2.7, -8.1, 0), V(2.7, -7.6, 0)),
    Part.ArcOfCircle(Part.Circle(V(2.199999, -7.600001, 0), V(0, 0, 1), 0.500001), math.radians(0.000153), math.radians(89.999847)),
    Part.ArcOfCircle(Part.Circle(V(2.200001, -7.600001, 0), V(0, 0, 1), 0.500001), math.radians(90.000153), math.radians(179.999847)),
    Part.LineSegment(V(1.7, -7.6, 0), V(1.7, -9.3, 0)),
    Part.ArcOfCircle(Part.Circle(V(1.199999, -9.299999, 0), V(0, 0, 1), 0.500001), math.radians(-89.999847), math.radians(-0.000153)),
    Part.LineSegment(V(1.2, -9.8, 0), V(-1.2, -9.8, 0)),
    Part.ArcOfCircle(Part.Circle(V(-1.199999, -9.299999, 0), V(0, 0, 1), 0.500001), math.radians(-179.999847), math.radians(-90.000153)),
    Part.LineSegment(V(-1.7, -9.3, 0), V(-1.7, -7.6, 0)),
    Part.ArcOfCircle(Part.Circle(V(-2.200001, -7.600001, 0), V(0, 0, 1), 0.500001), math.radians(0.000153), math.radians(89.999847)),
    Part.ArcOfCircle(Part.Circle(V(-2.199999, -7.600001, 0), V(0, 0, 1), 0.500001), math.radians(90.000153), math.radians(179.999847)),
    Part.LineSegment(V(-2.7, -7.6, 0), V(-2.7, -8.1, 0)),
    Part.ArcOfCircle(Part.Circle(V(-2.700001, -8.300001, 0), V(0, 0, 1), 0.200001), math.radians(0.000348), math.radians(89.999652)),
], False)
sketch2.addConstraint([
    Sketcher.Constraint("Tangent", 0, 2, 1, 2),
    Sketcher.Constraint("Tangent", 1, 1, 2, 1),
    Sketcher.Constraint("Coincident", 2, 2, 3, 1),
    Sketcher.Constraint("Tangent", 3, 2, 4, 1),
    Sketcher.Constraint("Tangent", 4, 2, 5, 1),
    Sketcher.Constraint("Tangent", 5, 2, 6, 1),
    Sketcher.Constraint("Tangent", 6, 2, 7, 1),
    Sketcher.Constraint("Coincident", 7, 2, 8, 1),
    Sketcher.Constraint("Tangent", 8, 2, 9, 2),
    Sketcher.Constraint("Tangent", 9, 1, 10, 1),
    Sketcher.Constraint("Coincident", 10, 2, 11, 2),
    Sketcher.Constraint("Coincident", 11, 1, 12, 1),
    Sketcher.Constraint("Coincident", 12, 2, 13, 1),
    Sketcher.Constraint("Coincident", 13, 2, 14, 1),
    Sketcher.Constraint("Coincident", 14, 2, 15, 1),
    Sketcher.Constraint("Coincident", 15, 2, 16, 2),
    Sketcher.Constraint("Coincident", 16, 1, 17, 1),
    Sketcher.Constraint("Coincident", 17, 2, 18, 2),
    Sketcher.Constraint("Coincident", 18, 1, 19, 1),
    Sketcher.Constraint("Coincident", 19, 2, 20, 1),
    Sketcher.Constraint("Coincident", 20, 2, 21, 1),
    Sketcher.Constraint("Coincident", 21, 2, 22, 1),
    Sketcher.Constraint("Coincident", 22, 2, 23, 2),
    Sketcher.Constraint("Coincident", 23, 1, 0, 1),
    Sketcher.Constraint("Vertical", 0),
    Sketcher.Constraint("Horizontal", 2),
    Sketcher.Constraint("Vertical", 3),
    Sketcher.Constraint("Vertical", 7),
    Sketcher.Constraint("Horizontal", 8),
    Sketcher.Constraint("Vertical", 10),
    Sketcher.Constraint("Vertical", 12),
    Sketcher.Constraint("Vertical", 15),
    Sketcher.Constraint("Horizontal", 17),
    Sketcher.Constraint("Vertical", 19),
    Sketcher.Constraint("Vertical", 22),
    Sketcher.Constraint("Coincident", 14, 3, 13, 3),
    Sketcher.Constraint("Coincident", 21, 3, 20, 3),
    Sketcher.Constraint("Equal", 4, 6),
    Sketcher.Constraint("Equal", 1, 9),
    Sketcher.Constraint("Equal", 6, 13),
    Sketcher.Constraint("Equal", 14, 16),
    Sketcher.Constraint("Equal", 16, 18),
    Sketcher.Constraint("Equal", 18, 20),
    Sketcher.Constraint("Equal", 11, 23),
    Sketcher.Constraint("Symmetric", 4, 3, 6, 3, -2),
    Sketcher.Constraint("Symmetric", 1, 3, 9, 3, -2),
    Sketcher.Constraint("Symmetric", 13, 3, 20, 3, -2),
    Sketcher.Constraint("Horizontal", 11, 3, 23, 3),
    Sketcher.Constraint("Horizontal", 23, 3, 10, 2),
    Sketcher.Constraint("Horizontal", 21, 3, 12, 2),
    Sketcher.Constraint("Horizontal", 12, 2, 14, 2),
    Sketcher.Constraint("Horizontal", 18, 3, 15, 2),
    Sketcher.Constraint("Horizontal", 15, 2, 18, 1),
    Sketcher.Constraint("Horizontal", 14, 2, 19, 2),
    Sketcher.Constraint("Horizontal", 19, 2, 21, 2),
    Sketcher.Constraint("Horizontal", 10, 2, 23, 1),
    Sketcher.Constraint("Vertical", 14, 3, 13, 2),
    Sketcher.Constraint("Vertical", 18, 3, 17, 2),
    Sketcher.Constraint("Vertical", 21, 3, 20, 2),
    Sketcher.Constraint("Vertical", 23, 3, 21, 2),
    Sketcher.Constraint("Radius", 1, 0.6),
    Sketcher.Constraint("Radius", 4, 0.5),
    Sketcher.Constraint("Radius", 11, 0.200001),
    Sketcher.Constraint("DistanceX", 2, 2, 2, 1, 1.4),
    Sketcher.Constraint("DistanceX", 17, 2, 17, 1, 2.4),
    Sketcher.Constraint("DistanceY", 0, 2, 0, 1, 1.1),
    Sketcher.Constraint("DistanceY", 12, 1, 12, 2, 0.5),
    Sketcher.Constraint("DistanceY", 15, 2, 15, 1, 1.7),
    Sketcher.Constraint("DistanceX", 4, 3, -1, 1, 4.0),
    Sketcher.Constraint("DistanceY", 1, 1, -1, 1, 10.0),
    Sketcher.Constraint("Radius", 5, 17.174983),
    Sketcher.Constraint("DistanceY", 3, 2, 3, 1, 0.013132),
])
pad2 = body2.newObject("PartDesign::Pad", "Pad001")
pad2.Profile = sketch2
pad2.Length = 25

doc.recompute()
